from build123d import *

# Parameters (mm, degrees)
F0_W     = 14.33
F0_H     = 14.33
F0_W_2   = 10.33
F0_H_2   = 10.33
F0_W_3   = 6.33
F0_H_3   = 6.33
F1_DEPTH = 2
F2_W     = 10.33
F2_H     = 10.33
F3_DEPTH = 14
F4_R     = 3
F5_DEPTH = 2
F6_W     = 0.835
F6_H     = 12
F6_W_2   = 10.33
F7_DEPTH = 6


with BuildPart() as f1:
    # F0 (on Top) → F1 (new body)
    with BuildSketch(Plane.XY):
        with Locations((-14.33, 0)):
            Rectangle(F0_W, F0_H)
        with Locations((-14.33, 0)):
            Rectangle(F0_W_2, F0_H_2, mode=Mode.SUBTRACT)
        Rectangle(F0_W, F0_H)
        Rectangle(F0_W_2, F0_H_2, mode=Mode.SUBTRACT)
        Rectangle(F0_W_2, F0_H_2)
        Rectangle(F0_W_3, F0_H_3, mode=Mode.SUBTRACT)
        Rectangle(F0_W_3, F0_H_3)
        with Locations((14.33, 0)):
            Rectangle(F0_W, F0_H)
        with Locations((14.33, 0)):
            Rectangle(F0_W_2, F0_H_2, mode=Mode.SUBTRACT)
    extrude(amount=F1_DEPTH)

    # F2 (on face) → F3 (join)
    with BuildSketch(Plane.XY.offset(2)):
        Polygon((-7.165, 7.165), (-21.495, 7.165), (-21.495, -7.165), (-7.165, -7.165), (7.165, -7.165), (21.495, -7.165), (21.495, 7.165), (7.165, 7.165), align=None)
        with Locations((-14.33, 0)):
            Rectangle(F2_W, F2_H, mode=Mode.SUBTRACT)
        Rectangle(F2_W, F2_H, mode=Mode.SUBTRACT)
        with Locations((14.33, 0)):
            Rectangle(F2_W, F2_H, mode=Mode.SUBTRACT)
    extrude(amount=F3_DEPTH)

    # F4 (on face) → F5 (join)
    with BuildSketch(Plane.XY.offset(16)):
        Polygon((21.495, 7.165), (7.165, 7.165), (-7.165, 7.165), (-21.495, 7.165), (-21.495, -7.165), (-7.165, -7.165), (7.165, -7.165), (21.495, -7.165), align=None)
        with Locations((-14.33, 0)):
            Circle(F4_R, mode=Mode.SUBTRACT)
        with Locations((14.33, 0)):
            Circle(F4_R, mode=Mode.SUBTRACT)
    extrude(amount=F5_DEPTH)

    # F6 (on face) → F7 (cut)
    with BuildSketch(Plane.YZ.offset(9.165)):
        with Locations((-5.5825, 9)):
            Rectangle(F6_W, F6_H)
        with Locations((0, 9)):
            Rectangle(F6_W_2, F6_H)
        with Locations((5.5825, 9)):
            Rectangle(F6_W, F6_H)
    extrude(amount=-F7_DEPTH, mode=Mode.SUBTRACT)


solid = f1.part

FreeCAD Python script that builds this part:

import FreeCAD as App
import Part
import Sketcher

V = App.Vector
Q = App.Units.Quantity


def add_polygon(sketch, points):
    """Adds a closed chain of lines whose ends are joined by coincident constraints."""
    first, n = sketch.GeometryCount, len(points)
    for a, b in zip(points, points[1:] + points[:1]):
        sketch.addGeometry(Part.LineSegment(App.Vector(*a, 0), App.Vector(*b, 0)), False)
    for i in range(n):
        sketch.addConstraint(Sketcher.Constraint("Coincident", first + i, 2, first + (i + 1) % n, 1))

doc = App.newDocument("Part")
body = doc.addObject("PartDesign::Body", "Body")

sketch1 = body.newObject("Sketcher::SketchObject", "Sketch")
sketch1.AttachmentSupport = (doc.getObject("XY_Plane"), [""])
sketch1.MapMode = "FlatFace"
add_polygon(sketch1, [(-21, 7), (-21, -7), (21, -7), (21, 7)])
add_polygon(sketch1, [(-9, -5), (-19, -5), (-19, 5), (-9, 5)])
add_polygon(sketch1, [(19, -5), (9, -5), (9, 5), (19, 5)])
sketch1.addConstraint([
    Sketcher.Constraint("Vertical", 0),
    Sketcher.Constraint("Horizontal", 1),
    Sketcher.Constraint("Vertical", 2),
    Sketcher.Constraint("Horizontal", 3),
    Sketcher.Constraint("Horizontal", 4),
    Sketcher.Constraint("Vertical", 5),
    Sketcher.Constraint("Horizontal", 6),
    Sketcher.Constraint("Vertical", 7),
    Sketcher.Constraint("Horizontal", 8),
    Sketcher.Constraint("Vertical", 9),
    Sketcher.Constraint("Horizontal", 10),
    Sketcher.Constraint("Vertical", 11),
    Sketcher.Constraint("Symmetric", 0, 2, 2, 2, -1, 1),
    Sketcher.Constraint("Symmetric", 6, 2, 8, 2, -1, 1),
    Sketcher.Constraint("Symmetric", 4, 2, 10, 2, -1, 1),
    Sketcher.Constraint("Horizontal", 7, 2, 8, 2),
    Sketcher.Constraint("Equal", 10, 5),
    Sketcher.Constraint("DistanceX", 0, 2, 4, 2, Q("2 mm")),
    Sketcher.Constraint("DistanceY", 0, 2, 4, 2, Q("2 mm")),
    Sketcher.Constraint("DistanceX", 1, 1, 1, 2, Q("42.99 mm")),
    Sketcher.Constraint("DistanceX", 4, 2, 4, 1, Q("10.33 mm")),
])
pad1 = body.newObject("PartDesign::Pad", "Pad")
pad1.Profile = sketch1
pad1.Length = 2

sketch2 = body.newObject("Sketcher::SketchObject", "Sketch001")
sketch2.AttachmentSupport = (doc.getObject("XY_Plane"), [""])
sketch2.MapMode = "FlatFace"
sketch2.AttachmentOffset = App.Placement(V(0, 0, 2), App.Rotation())
add_polygon(sketch2, [(-21, 7), (-21, -7), (21, -7), (21, 7)])
add_polygon(sketch2, [(-9, -5), (-19, -5), (-19, 5), (-9, 5)])
add_polygon(sketch2, [(5, -5), (-5, -5), (-5, 5), (5, 5)])
add_polygon(sketch2, [(19, -5), (9, -5), (9, 5), (19, 5)])
sketch2.addConstraint([
    Sketcher.Constraint("Vertical", 0),
    Sketcher.Constraint("Horizontal", 1),
    Sketcher.Constraint("Vertical", 2),
    Sketcher.Constraint("Horizontal", 3),
    Sketcher.Constraint("Horizontal", 4),
    Sketcher.Constraint("Vertical", 5),
    Sketcher.Constraint("Horizontal", 6),
    Sketcher.Constraint("Vertical", 7),
    Sketcher.Constraint("Horizontal", 8),
    Sketcher.Constraint("Vertical", 9),
    Sketcher.Constraint("Horizontal", 10),
    Sketcher.Constraint("Vertical", 11),
    Sketcher.Constraint("Horizontal", 12),
    Sketcher.Constraint("Vertical", 13),
    Sketcher.Constraint("Horizontal", 14),
    Sketcher.Constraint("Vertical", 15),
    Sketcher.Constraint("Symmetric", 0, 2, 2, 2, -1, 1),
    Sketcher.Constraint("Symmetric", 8, 2, 10, 2, -1, 1),
    Sketcher.Constraint("Symmetric", 6, 2, 12, 2, -1, 1),
    Sketcher.Constraint("Symmetric", 4, 2, 14, 2, -1, 1),
    Sketcher.Constraint("Horizontal", 7, 2, 8, 2),
    Sketcher.Constraint("Horizontal", 6, 2, 9, 2),
    Sketcher.Constraint("Equal", 6, 8),
    Sketcher.Constraint("Equal", 14, 5),
    Sketcher.Constraint("DistanceX", 0, 2, 4, 2, Q("2 mm")),
    Sketcher.Constraint("DistanceY", 0, 2, 4, 2, Q("2 mm")),
    Sketcher.Constraint("DistanceX", 7, 2, 8, 2, Q("4 mm")),
    Sketcher.Constraint("DistanceX", 1, 1, 1, 2, Q("42.99 mm")),
])
pad2 = body.newObject("PartDesign::Pad", "Pad001")
pad2.Profile = sketch2
pad2.Length = 14

sketch3 = body.newObject("Sketcher::SketchObject", "Sketch002")
sketch3.AttachmentSupport = (doc.getObject("XY_Plane"), [""])
sketch3.MapMode = "FlatFace"
sketch3.AttachmentOffset = App.Placement(V(0, 0, 16), App.Rotation())
add_polygon(sketch3, [(21.5, 7.2), (-21.5, 7.2), (-21.5, -7.2), (21.5, -7.2)])
sketch3.addGeometry(Part.Circle(V(-14.3, 0, 0), V(0, 0, 1), 3), False)
sketch3.addGeometry(Part.Circle(V(14.3, 0, 0), V(0, 0, 1), 3), False)
sketch3.addConstraint([
    Sketcher.Constraint("Horizontal", 0),
    Sketcher.Constraint("Vertical", 1),
    Sketcher.Constraint("Horizontal", 2),
    Sketcher.Constraint("Vertical", 3),
    Sketcher.Constraint("Equal", 4, 5),
    Sketcher.Constraint("Symmetric", 4, 3, 5, 3, -1, 1),
    Sketcher.Constraint("Symmetric", 0, 2, 2, 2, -1, 1),
    Sketcher.Constraint("PointOnObject", 4, 3, -1),
    Sketcher.Constraint("Diameter", 4, Q("6 mm")),
    Sketcher.Constraint("DistanceX", 0, 2, 0, 1, Q("42.99 mm")),
    Sketcher.Constraint("DistanceY", 1, 2, 1, 1, Q("14.33 mm")),
    Sketcher.Constraint("DistanceX", 4, 3, -1, 1, Q("14.33 mm")),
])
pad3 = body.newObject("PartDesign::Pad", "Pad002")
pad3.Profile = sketch3
pad3.Length = 2

sketch4 = body.newObject("Sketcher::SketchObject", "Sketch003")
sketch4.AttachmentSupport = (doc.getObject("YZ_Plane"), [""])
sketch4.MapMode = "FlatFace"
sketch4.AttachmentOffset = App.Placement(V(0, 0, 9.165), App.Rotation())
add_polygon(sketch4, [(-6, 15), (-6, 3), (6, 3), (6, 15)])
sketch4.addConstraint([
    Sketcher.Constraint("Vertical", 0),
    Sketcher.Constraint("Horizontal", 1),
    Sketcher.Constraint("Vertical", 2),
    Sketcher.Constraint("Horizontal", 3),
    Sketcher.Constraint("Equal", 3, 0),
    Sketcher.Constraint("DistanceX", 1, 1, 1, 2, Q("12 mm")),
    Sketcher.Constraint("DistanceX", 0, 2, -1, 1, Q("6 mm")),
    Sketcher.Constraint("DistanceY", -1, 1, 0, 2, Q("3 mm")),
])
pocket1 = body.newObject("PartDesign::Pocket", "Pocket")
pocket1.Profile = sketch4
pocket1.Length = 6

doc.recompute()
